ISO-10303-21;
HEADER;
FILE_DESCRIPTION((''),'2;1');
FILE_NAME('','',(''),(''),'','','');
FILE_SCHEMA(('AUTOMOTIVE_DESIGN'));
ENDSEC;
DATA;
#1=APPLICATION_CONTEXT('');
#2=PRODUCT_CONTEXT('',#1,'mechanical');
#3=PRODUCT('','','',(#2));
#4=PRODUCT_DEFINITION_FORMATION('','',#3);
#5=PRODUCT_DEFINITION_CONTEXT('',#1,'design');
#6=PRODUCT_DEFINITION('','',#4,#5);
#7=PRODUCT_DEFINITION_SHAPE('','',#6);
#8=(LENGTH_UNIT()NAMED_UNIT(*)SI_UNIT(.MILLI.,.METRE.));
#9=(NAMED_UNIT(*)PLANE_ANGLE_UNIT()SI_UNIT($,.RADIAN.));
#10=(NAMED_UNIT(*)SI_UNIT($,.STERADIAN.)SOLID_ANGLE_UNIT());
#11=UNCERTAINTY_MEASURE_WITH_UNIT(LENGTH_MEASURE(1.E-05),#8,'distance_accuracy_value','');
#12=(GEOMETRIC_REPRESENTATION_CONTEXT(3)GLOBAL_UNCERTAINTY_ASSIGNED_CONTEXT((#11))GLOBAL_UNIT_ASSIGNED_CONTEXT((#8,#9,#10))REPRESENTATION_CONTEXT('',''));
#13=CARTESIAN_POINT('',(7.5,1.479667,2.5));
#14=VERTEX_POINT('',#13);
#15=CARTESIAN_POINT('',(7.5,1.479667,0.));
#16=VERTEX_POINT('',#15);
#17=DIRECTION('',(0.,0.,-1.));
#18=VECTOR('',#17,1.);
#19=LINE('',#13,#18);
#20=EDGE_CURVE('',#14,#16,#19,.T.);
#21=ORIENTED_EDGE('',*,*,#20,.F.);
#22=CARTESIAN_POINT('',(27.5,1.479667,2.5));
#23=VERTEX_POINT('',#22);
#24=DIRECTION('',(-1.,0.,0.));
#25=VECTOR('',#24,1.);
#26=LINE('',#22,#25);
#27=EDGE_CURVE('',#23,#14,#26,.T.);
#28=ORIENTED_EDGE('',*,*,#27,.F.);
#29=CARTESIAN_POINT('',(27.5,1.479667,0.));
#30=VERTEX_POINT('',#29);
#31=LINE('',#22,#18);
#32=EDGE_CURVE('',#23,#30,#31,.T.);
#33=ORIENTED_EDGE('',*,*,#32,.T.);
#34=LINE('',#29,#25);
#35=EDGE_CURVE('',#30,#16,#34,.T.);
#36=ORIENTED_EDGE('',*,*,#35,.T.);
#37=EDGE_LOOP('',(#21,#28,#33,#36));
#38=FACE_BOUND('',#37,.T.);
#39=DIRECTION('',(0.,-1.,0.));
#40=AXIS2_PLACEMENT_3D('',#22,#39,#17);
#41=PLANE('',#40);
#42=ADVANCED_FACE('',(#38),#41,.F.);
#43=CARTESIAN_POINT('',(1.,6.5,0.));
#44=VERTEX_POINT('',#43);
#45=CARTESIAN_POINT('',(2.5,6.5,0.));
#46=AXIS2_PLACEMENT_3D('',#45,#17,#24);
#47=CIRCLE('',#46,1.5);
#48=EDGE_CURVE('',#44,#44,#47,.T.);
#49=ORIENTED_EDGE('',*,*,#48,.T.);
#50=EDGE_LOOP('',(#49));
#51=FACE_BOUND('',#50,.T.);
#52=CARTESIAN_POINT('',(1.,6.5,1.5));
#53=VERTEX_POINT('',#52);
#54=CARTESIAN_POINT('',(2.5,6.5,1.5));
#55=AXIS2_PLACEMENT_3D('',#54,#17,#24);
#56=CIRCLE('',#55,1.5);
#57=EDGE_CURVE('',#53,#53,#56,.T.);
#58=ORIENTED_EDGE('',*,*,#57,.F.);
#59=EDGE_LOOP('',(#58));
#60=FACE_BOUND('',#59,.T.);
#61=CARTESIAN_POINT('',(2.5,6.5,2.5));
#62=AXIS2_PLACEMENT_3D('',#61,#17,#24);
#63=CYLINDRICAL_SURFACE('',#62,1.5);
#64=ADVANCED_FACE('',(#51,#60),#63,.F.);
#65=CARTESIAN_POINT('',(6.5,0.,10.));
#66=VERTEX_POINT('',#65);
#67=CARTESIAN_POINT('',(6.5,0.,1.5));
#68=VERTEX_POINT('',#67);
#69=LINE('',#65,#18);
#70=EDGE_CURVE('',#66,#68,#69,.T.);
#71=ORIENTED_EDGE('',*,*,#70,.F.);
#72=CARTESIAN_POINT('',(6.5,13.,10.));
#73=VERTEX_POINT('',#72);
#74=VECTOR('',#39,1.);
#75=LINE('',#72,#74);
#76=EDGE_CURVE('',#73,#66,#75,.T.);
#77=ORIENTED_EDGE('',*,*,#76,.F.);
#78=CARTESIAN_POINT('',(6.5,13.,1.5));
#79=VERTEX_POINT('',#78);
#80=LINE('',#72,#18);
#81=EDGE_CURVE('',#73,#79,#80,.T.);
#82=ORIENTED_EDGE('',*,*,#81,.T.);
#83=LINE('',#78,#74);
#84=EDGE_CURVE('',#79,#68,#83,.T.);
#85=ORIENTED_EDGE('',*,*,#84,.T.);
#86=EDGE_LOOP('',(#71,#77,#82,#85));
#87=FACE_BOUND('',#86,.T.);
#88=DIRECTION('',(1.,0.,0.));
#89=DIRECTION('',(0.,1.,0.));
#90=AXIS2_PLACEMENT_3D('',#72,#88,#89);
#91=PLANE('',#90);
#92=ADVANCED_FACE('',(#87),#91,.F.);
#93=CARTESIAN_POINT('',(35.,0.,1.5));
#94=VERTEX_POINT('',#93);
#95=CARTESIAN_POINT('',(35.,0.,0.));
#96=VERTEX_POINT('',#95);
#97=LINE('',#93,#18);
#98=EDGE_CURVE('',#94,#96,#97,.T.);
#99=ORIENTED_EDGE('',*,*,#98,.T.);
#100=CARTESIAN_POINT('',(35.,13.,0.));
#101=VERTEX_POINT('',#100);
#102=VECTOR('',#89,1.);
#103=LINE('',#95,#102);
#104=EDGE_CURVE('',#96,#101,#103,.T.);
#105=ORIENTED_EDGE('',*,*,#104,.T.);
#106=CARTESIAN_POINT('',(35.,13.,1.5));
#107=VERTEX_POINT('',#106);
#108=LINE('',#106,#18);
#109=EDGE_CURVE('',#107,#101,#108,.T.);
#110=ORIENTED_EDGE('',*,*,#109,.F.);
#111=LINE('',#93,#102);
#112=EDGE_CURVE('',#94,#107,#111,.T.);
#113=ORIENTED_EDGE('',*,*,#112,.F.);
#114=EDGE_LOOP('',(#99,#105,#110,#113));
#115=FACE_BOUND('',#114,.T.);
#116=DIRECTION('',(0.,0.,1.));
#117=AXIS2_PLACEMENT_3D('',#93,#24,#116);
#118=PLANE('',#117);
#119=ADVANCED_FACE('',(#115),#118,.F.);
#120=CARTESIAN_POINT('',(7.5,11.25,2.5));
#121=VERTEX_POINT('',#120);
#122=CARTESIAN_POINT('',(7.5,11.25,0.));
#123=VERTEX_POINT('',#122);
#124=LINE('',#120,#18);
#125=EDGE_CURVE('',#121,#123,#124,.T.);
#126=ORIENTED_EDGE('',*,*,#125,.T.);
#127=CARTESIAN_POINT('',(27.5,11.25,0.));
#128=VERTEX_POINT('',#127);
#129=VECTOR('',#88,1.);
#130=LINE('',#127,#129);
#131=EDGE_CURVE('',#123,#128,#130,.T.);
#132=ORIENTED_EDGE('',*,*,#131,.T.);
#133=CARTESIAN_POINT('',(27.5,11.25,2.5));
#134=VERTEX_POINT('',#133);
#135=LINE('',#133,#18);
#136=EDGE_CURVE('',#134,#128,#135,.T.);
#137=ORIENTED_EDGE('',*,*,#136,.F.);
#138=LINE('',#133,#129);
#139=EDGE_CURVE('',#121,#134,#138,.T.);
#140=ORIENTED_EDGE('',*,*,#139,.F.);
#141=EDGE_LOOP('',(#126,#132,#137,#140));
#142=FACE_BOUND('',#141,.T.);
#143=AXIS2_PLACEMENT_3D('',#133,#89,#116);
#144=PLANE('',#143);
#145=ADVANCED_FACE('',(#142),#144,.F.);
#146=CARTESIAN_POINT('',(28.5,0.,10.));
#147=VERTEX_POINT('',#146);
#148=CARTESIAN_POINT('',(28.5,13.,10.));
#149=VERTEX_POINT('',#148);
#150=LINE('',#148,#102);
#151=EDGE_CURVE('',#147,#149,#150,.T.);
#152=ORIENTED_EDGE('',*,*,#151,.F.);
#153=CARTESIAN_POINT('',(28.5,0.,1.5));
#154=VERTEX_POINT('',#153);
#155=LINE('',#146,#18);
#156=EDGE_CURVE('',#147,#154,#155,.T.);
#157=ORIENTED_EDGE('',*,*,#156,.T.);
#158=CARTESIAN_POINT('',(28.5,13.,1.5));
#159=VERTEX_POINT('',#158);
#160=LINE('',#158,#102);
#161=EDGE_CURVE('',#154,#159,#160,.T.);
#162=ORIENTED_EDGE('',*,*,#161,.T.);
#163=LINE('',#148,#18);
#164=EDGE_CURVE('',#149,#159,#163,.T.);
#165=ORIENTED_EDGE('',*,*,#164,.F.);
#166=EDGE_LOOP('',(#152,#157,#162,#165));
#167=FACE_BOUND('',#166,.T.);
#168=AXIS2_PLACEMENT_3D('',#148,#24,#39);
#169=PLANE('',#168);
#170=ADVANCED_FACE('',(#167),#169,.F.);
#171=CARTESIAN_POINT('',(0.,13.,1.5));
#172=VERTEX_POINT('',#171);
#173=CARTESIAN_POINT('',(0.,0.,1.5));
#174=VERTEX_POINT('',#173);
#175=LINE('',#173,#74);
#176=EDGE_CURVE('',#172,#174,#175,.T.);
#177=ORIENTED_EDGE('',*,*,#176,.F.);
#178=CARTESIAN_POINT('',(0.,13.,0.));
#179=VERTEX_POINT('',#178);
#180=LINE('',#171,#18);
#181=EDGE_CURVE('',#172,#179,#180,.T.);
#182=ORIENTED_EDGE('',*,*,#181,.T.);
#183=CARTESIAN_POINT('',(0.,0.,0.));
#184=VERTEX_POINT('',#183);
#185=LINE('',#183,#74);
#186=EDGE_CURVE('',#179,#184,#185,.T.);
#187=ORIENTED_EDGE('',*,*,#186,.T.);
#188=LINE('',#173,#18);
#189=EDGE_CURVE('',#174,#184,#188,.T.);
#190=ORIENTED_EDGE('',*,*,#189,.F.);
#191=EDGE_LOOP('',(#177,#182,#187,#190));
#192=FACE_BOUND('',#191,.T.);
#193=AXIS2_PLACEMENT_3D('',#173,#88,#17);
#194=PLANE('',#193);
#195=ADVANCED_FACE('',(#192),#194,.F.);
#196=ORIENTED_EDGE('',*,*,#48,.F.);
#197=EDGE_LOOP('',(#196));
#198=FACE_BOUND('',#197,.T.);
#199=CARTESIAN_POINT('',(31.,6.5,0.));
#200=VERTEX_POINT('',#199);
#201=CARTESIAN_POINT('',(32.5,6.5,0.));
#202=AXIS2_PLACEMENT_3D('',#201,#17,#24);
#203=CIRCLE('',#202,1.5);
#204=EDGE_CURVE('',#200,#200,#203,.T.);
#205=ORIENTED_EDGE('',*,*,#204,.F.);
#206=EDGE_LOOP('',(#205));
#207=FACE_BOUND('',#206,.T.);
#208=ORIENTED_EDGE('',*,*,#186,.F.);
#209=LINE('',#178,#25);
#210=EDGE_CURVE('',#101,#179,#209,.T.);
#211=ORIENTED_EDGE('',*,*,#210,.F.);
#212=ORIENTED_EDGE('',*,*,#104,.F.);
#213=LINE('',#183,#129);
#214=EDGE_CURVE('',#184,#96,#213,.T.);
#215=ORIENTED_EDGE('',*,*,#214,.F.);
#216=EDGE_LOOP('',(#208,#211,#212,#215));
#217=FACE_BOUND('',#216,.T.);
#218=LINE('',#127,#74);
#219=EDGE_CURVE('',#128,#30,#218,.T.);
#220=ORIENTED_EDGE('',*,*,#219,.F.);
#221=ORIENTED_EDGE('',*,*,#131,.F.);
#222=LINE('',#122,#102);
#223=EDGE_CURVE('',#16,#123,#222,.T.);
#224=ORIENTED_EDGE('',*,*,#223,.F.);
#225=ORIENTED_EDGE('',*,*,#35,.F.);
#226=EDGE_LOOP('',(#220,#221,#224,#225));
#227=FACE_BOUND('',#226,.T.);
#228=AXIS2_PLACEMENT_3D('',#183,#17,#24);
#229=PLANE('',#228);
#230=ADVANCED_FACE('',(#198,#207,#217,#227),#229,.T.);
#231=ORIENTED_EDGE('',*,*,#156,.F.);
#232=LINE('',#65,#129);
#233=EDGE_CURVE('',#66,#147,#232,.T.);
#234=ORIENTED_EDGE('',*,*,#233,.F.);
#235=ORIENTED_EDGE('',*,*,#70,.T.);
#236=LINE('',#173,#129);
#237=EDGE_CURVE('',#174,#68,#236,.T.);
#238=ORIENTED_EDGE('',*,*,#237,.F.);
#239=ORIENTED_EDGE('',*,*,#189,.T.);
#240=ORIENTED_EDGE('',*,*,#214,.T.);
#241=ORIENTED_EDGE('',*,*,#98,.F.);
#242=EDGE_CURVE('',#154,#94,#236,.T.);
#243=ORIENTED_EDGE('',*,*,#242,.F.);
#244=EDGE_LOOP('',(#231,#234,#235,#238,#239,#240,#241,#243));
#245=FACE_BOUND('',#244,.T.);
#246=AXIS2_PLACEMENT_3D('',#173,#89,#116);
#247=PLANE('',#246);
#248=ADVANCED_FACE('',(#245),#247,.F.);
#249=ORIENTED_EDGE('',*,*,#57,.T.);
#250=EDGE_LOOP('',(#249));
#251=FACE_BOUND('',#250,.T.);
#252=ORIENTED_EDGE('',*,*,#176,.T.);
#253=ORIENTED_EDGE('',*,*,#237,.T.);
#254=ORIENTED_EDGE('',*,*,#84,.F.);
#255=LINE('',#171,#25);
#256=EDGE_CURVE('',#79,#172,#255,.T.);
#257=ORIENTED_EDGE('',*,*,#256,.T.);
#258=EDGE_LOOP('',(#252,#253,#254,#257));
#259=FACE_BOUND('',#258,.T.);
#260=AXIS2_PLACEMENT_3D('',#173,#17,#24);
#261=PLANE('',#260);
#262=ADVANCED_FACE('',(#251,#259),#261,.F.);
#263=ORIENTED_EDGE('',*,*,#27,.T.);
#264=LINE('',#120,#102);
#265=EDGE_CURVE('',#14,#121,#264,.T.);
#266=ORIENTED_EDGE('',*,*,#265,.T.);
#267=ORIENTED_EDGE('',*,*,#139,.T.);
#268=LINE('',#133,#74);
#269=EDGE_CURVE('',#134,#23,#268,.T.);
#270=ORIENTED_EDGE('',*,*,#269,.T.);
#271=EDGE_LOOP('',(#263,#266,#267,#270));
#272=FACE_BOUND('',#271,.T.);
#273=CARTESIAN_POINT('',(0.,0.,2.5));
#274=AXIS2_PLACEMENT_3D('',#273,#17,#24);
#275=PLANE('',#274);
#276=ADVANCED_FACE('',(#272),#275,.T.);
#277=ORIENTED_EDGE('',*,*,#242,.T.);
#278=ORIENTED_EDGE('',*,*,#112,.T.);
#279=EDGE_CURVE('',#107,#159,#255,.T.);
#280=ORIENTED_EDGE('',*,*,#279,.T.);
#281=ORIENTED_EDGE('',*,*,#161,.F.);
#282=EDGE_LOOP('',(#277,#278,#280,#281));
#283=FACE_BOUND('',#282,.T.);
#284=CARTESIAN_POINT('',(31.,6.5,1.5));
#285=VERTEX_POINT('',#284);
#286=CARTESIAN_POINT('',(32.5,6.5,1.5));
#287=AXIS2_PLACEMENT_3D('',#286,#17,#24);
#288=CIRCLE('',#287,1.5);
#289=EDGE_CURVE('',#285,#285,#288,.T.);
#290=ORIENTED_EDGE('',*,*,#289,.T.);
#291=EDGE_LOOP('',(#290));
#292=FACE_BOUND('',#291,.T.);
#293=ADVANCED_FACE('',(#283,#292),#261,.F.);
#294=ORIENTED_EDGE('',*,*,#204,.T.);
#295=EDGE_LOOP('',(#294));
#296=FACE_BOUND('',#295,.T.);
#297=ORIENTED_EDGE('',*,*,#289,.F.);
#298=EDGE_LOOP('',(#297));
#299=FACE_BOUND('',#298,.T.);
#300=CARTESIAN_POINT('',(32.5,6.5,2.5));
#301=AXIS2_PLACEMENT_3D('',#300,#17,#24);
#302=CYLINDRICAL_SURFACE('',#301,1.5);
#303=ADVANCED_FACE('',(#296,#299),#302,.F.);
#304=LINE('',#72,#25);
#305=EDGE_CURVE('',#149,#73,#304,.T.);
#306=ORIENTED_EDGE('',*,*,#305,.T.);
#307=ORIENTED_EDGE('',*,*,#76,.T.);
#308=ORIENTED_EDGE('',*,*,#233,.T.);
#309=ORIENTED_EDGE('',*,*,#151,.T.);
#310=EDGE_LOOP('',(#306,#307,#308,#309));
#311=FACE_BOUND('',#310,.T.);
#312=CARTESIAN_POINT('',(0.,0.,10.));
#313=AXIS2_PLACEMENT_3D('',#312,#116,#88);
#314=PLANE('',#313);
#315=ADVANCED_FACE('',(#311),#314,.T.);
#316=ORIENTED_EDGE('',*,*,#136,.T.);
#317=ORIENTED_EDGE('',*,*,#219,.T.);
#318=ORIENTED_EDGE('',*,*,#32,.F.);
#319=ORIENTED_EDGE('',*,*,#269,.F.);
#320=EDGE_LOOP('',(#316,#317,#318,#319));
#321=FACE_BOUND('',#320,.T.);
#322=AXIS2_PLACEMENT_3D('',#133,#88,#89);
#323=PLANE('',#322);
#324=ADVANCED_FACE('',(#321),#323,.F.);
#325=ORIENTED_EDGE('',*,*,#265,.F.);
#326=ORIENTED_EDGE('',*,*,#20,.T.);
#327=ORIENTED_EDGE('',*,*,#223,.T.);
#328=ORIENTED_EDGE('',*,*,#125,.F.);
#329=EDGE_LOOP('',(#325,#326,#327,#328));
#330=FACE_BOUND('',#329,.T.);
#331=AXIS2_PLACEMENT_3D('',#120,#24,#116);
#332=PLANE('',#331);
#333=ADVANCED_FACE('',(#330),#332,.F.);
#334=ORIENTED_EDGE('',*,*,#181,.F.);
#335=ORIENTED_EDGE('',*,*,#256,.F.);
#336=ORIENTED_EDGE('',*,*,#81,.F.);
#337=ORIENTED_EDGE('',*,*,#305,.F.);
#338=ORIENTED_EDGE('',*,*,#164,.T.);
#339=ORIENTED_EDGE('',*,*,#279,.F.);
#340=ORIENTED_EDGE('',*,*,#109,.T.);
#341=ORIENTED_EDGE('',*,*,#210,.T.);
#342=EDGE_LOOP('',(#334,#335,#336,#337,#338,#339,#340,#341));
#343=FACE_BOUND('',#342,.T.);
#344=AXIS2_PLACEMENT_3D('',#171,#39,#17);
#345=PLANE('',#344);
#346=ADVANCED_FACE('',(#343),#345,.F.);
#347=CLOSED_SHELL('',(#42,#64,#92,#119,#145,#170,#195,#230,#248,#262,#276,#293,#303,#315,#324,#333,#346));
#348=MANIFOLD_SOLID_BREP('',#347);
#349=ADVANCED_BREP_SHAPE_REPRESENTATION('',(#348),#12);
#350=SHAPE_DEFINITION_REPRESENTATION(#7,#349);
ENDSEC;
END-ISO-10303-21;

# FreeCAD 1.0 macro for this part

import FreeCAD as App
import Part
import Sketcher
from FreeCAD import Vector

doc = App.newDocument("Part")
body = doc.addObject("PartDesign::Body", "Body")

sketch1 = body.newObject("Sketcher::SketchObject", "Sketch")
sketch1.AttachmentSupport = (doc.getObject("XY_Plane"), [""])
sketch1.MapMode = "FlatFace"
sketch1.addGeometry([
    Part.LineSegment(Vector(0, 13, 0), Vector(0, 0, 0)),
    Part.LineSegment(Vector(0, 0, 0), Vector(35, 0, 0)),
    Part.LineSegment(Vector(35, 0, 0), Vector(35, 13, 0)),
    Part.LineSegment(Vector(35, 13, 0), Vector(0, 13, 0)),
], False)
sketch1.addConstraint([
    Sketcher.Constraint("Coincident", 0, 2, 1, 1),
    Sketcher.Constraint("Coincident", 1, 2, 2, 1),
    Sketcher.Constraint("Coincident", 2, 2, 3, 1),
    Sketcher.Constraint("Coincident", 3, 2, 0, 1),
    Sketcher.Constraint("Vertical", 0),
    Sketcher.Constraint("Horizontal", 1),
    Sketcher.Constraint("Vertical", 2),
    Sketcher.Constraint("Horizontal", 3),
    Sketcher.Constraint("Coincident", 0, 2, -1, 1),
    Sketcher.Constraint("DistanceX", 1, 1, 1, 2, 35.0),
    Sketcher.Constraint("DistanceY", 0, 2, 0, 1, 13.0),
])
pad1 = body.newObject("PartDesign::Pad", "Pad")
pad1.Profile = sketch1
pad1.Length = 1.5

sketch2 = body.newObject("Sketcher::SketchObject", "Sketch001")
sketch2.AttachmentSupport = (doc.getObject("XY_Plane"), [""])
sketch2.MapMode = "FlatFace"
sketch2.AttachmentOffset = App.Placement(Vector(0, 0, 1.5), App.Rotation())
sketch2.addGeometry([
    Part.LineSegment(Vector(6, 13, 0), Vector(6, 0, 0)),
    Part.LineSegment(Vector(6, 0, 0), Vector(28, 0, 0)),
    Part.LineSegment(Vector(28, 0, 0), Vector(28, 13, 0)),
    Part.LineSegment(Vector(28, 13, 0), Vector(6, 13, 0)),
], False)
sketch2.addConstraint([
    Sketcher.Constraint("Coincident", 0, 2, 1, 1),
    Sketcher.Constraint("Coincident", 1, 2, 2, 1),
    Sketcher.Constraint("Coincident", 2, 2, 3, 1),
    Sketcher.Constraint("Coincident", 3, 2, 0, 1),
    Sketcher.Constraint("Vertical", 0),
    Sketcher.Constraint("Horizontal", 1),
    Sketcher.Constraint("Vertical", 2),
    Sketcher.Constraint("Horizontal", 3),
    Sketcher.Constraint("PointOnObject", 0, 2, -1),
    Sketcher.Constraint("DistanceX", 1, 1, 1, 2, 22.0),
    Sketcher.Constraint("DistanceY", 0, 2, 0, 1, 13.0),
    Sketcher.Constraint("DistanceX", -1, 1, 0, 2, 6.5),
])
pad2 = body.newObject("PartDesign::Pad", "Pad001")
pad2.Profile = sketch2
pad2.Length = 8.5

sketch3 = body.newObject("Sketcher::SketchObject", "Sketch002")
sketch3.AttachmentSupport = (doc.getObject("XY_Plane"), [""])
sketch3.MapMode = "FlatFace"
sketch3.addGeometry([
    Part.LineSegment(Vector(28, 11, 0), Vector(28, 1, 0)),
    Part.LineSegment(Vector(28, 1, 0), Vector(8, 1, 0)),
    Part.LineSegment(Vector(8, 1, 0), Vector(8, 11, 0)),
    Part.LineSegment(Vector(8, 11, 0), Vector(28, 11, 0)),
], False)
sketch3.addConstraint([
    Sketcher.Constraint("Coincident", 0, 2, 1, 1),
    Sketcher.Constraint("Coincident", 1, 2, 2, 1),
    Sketcher.Constraint("Coincident", 2, 2, 3, 1),
    Sketcher.Constraint("Coincident", 3, 2, 0, 1),
    Sketcher.Constraint("Vertical", 0),
    Sketcher.Constraint("Horizontal", 1),
    Sketcher.Constraint("Vertical", 2),
    Sketcher.Constraint("Horizontal", 3),
    Sketcher.Constraint("DistanceX", 1, 2, 1, 1, 20.0),
    Sketcher.Constraint("DistanceX", -1, 1, 0, 2, 27.5),
    Sketcher.Constraint("DistanceY", -1, 1, 2, 2, 11.25),
    Sketcher.Constraint("DistanceY", 0, 2, 0, 1, 9.770333),
])
pocket1 = body.newObject("PartDesign::Pocket", "Pocket")
pocket1.Profile = sketch3
pocket1.Length = 2.5
pocket1.Reversed = True

sketch4 = body.newObject("Sketcher::SketchObject", "Sketch003")
sketch4.AttachmentSupport = (doc.getObject("XY_Plane"), [""])
sketch4.MapMode = "FlatFace"
sketch4.addGeometry([
    Part.Circle(Vector(32.5, 6.5, 0), Vector(0, 0, 1), 1.5),
    Part.Circle(Vector(2.5, 6.5, 0), Vector(0, 0, 1), 1.5),
], False)
sketch4.addConstraint([
    Sketcher.Constraint("Equal", 0, 1),
    Sketcher.Constraint("Horizontal", 0, 3, 1, 3),
    Sketcher.Constraint("Diameter", 0, 3.0),
    Sketcher.Constraint("DistanceX", 1, 3, 0, 3, 30.0),
    Sketcher.Constraint("DistanceX", -1, 1, 0, 3, 32.5),
    Sketcher.Constraint("DistanceY", -1, 1, 0, 3, 6.5),
])
pocket2 = body.newObject("PartDesign::Pocket", "Pocket001")
pocket2.Profile = sketch4
pocket2.Length = 2.5
pocket2.Reversed = True

doc.recompute()
